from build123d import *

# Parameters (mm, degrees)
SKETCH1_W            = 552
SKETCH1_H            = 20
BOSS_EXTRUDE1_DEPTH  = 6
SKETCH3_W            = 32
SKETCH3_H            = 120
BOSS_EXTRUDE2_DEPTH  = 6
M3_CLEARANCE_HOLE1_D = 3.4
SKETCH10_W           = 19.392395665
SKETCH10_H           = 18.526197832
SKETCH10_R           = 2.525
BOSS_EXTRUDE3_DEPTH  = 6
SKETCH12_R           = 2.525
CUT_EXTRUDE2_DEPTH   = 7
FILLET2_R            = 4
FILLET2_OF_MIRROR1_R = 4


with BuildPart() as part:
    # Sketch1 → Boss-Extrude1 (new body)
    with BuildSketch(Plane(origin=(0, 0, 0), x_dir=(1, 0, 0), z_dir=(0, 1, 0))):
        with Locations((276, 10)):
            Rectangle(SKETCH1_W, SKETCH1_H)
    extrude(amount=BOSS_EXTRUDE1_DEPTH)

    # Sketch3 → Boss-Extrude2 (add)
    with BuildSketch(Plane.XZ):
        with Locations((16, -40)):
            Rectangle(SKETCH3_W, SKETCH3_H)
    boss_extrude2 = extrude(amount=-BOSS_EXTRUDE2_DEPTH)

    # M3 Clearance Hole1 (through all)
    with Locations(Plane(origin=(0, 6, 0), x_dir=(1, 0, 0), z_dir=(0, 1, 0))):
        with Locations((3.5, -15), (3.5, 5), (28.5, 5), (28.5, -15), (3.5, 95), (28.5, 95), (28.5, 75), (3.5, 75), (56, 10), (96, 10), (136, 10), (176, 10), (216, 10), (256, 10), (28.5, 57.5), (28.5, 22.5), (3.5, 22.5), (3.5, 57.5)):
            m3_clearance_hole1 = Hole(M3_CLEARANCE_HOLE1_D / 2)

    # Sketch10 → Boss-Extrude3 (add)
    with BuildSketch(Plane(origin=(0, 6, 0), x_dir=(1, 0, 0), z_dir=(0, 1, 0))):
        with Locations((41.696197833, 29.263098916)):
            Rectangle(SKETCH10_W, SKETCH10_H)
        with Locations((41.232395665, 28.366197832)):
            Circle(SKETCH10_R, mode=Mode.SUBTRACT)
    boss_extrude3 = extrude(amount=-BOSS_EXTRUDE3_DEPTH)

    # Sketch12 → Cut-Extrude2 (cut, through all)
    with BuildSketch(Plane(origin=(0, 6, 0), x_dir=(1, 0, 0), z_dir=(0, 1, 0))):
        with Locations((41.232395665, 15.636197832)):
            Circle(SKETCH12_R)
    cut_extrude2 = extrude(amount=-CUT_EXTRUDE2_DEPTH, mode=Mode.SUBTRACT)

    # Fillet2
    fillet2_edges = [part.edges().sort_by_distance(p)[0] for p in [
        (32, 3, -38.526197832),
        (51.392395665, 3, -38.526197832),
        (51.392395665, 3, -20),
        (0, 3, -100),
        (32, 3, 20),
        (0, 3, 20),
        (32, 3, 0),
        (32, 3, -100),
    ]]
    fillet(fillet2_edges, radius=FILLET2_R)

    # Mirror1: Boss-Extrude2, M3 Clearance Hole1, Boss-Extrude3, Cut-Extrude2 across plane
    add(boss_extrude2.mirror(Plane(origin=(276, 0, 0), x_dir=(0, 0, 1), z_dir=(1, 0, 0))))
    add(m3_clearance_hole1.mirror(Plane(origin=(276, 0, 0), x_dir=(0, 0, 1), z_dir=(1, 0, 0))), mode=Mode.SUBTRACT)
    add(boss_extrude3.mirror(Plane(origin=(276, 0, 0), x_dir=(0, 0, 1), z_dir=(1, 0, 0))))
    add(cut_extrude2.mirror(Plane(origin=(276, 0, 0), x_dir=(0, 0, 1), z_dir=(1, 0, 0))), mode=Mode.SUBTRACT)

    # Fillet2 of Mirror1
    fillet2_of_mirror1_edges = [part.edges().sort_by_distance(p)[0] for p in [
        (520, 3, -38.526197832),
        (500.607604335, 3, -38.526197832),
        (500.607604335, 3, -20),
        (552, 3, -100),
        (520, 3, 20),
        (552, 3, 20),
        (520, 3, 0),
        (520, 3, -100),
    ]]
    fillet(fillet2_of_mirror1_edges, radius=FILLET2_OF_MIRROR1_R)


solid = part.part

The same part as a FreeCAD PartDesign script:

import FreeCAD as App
import Part
import Sketcher
from FreeCAD import Vector


def edges_at(feature, points):
    """Names of the edges that pass closest to the given points."""
    edges = feature.Shape.Edges
    near = lambda p: min(range(len(edges)), key=lambda i: edges[i].distToShape(Part.Vertex(*p))[0])
    return sorted({f"Edge{near(p) + 1}" for p in points})


def add_polygon(sketch, points):
    """Adds a closed chain of lines whose ends are joined by coincident constraints."""
    first, n = sketch.GeometryCount, len(points)
    for a, b in zip(points, points[1:] + points[:1]):
        sketch.addGeometry(Part.LineSegment(App.Vector(*a, 0), App.Vector(*b, 0)), False)
    for i in range(n):
        sketch.addConstraint(Sketcher.Constraint("Coincident", first + i, 2, first + (i + 1) % n, 1))

doc = App.newDocument("Part")
body = doc.addObject("PartDesign::Body", "Body")

sketch1 = body.newObject("Sketcher::SketchObject", "Sketch")
sketch1.AttachmentSupport = (doc.getObject("XZ_Plane"), [""])
sketch1.MapMode = "FlatFace"
add_polygon(sketch1, [(0, -20), (0, 0), (552, 0), (552, -20)])
sketch1.addConstraint(Sketcher.Constraint("Vertical", 0))
sketch1.addConstraint(Sketcher.Constraint("Horizontal", 1))
sketch1.addConstraint(Sketcher.Constraint("Vertical", 2))
sketch1.addConstraint(Sketcher.Constraint("Horizontal", 3))
sketch1.addConstraint(Sketcher.Constraint("Coincident", 0, 2, -1, 1))
sketch1.addConstraint(Sketcher.Constraint("DistanceX", 1, 1, 1, 2, 552.0))
sketch1.addConstraint(Sketcher.Constraint("DistanceY", 0, 1, 0, 2, 20.0))
pad1 = body.newObject("PartDesign::Pad", "Pad")
pad1.Profile = sketch1
pad1.Length = 6
pad1.Reversed = True

sketch2 = body.newObject("Sketcher::SketchObject", "Sketch001")
sketch2.AttachmentSupport = (doc.getObject("XZ_Plane"), [""])
sketch2.MapMode = "FlatFace"
add_polygon(sketch2, [(0, 20), (0, -100), (32, -100), (32, 20)])
sketch2.addConstraint(Sketcher.Constraint("Vertical", 0))
sketch2.addConstraint(Sketcher.Constraint("Horizontal", 1))
sketch2.addConstraint(Sketcher.Constraint("Vertical", 2))
sketch2.addConstraint(Sketcher.Constraint("Horizontal", 3))
sketch2.addConstraint(Sketcher.Constraint("PointOnObject", 0, 2, -2))
sketch2.addConstraint(Sketcher.Constraint("DistanceX", 1, 1, 1, 2, 32.0))
sketch2.addConstraint(Sketcher.Constraint("DistanceY", 0, 2, 0, 1, 120.0))
sketch2.addConstraint(Sketcher.Constraint("DistanceY", 0, 2, -1, 1, 100.0))
pad2 = body.newObject("PartDesign::Pad", "Pad001")
pad2.Profile = sketch2
pad2.Length = 6
pad2.Reversed = True

sketch3 = body.newObject("Sketcher::SketchObject", "Sketch002")
sketch3.AttachmentSupport = (doc.getObject("XZ_Plane"), [""])
sketch3.MapMode = "FlatFace"
sketch3.AttachmentOffset = App.Placement(Vector(0, 0, -6), App.Rotation())
sketch3.addGeometry(Part.Circle(Vector(3.5, 15, 0), Vector(0, 0, 1), 1.7), False)
sketch3.addGeometry(Part.Circle(Vector(3.5, -5, 0), Vector(0, 0, 1), 1.7), False)
sketch3.addGeometry(Part.Circle(Vector(28.5, -5, 0), Vector(0, 0, 1), 1.7), False)
sketch3.addGeometry(Part.Circle(Vector(28.5, 15, 0), Vector(0, 0, 1), 1.7), False)
sketch3.addGeometry(Part.Circle(Vector(3.5, -95, 0), Vector(0, 0, 1), 1.7), False)
sketch3.addGeometry(Part.Circle(Vector(28.5, -95, 0), Vector(0, 0, 1), 1.7), False)
sketch3.addGeometry(Part.Circle(Vector(28.5, -75, 0), Vector(0, 0, 1), 1.7), False)
sketch3.addGeometry(Part.Circle(Vector(3.5, -75, 0), Vector(0, 0, 1), 1.7), False)
sketch3.addGeometry(Part.Circle(Vector(56, -10, 0), Vector(0, 0, 1), 1.7), False)
sketch3.addGeometry(Part.Circle(Vector(96, -10, 0), Vector(0, 0, 1), 1.7), False)
sketch3.addGeometry(Part.Circle(Vector(136, -10, 0), Vector(0, 0, 1), 1.7), False)
sketch3.addGeometry(Part.Circle(Vector(176, -10, 0), Vector(0, 0, 1), 1.7), False)
sketch3.addGeometry(Part.Circle(Vector(216, -10, 0), Vector(0, 0, 1), 1.7), False)
sketch3.addGeometry(Part.Circle(Vector(256, -10, 0), Vector(0, 0, 1), 1.7), False)
sketch3.addGeometry(Part.Circle(Vector(28.5, -57.5, 0), Vector(0, 0, 1), 1.7), False)
sketch3.addGeometry(Part.Circle(Vector(28.5, -22.5, 0), Vector(0, 0, 1), 1.7), False)
sketch3.addGeometry(Part.Circle(Vector(3.5, -22.5, 0), Vector(0, 0, 1), 1.7), False)
sketch3.addGeometry(Part.Circle(Vector(3.5, -57.5, 0), Vector(0, 0, 1), 1.7), False)
sketch3.addConstraint(Sketcher.Constraint("Equal", 0, 1))
sketch3.addConstraint(Sketcher.Constraint("Equal", 1, 2))
sketch3.addConstraint(Sketcher.Constraint("Equal", 2, 3))
sketch3.addConstraint(Sketcher.Constraint("Equal", 3, 4))
sketch3.addConstraint(Sketcher.Constraint("Equal", 4, 5))
sketch3.addConstraint(Sketcher.Constraint("Equal", 5, 6))
sketch3.addConstraint(Sketcher.Constraint("Equal", 6, 7))
sketch3.addConstraint(Sketcher.Constraint("Equal", 7, 8))
sketch3.addConstraint(Sketcher.Constraint("Equal", 8, 9))
sketch3.addConstraint(Sketcher.Constraint("Equal", 9, 10))
sketch3.addConstraint(Sketcher.Constraint("Equal", 10, 11))
sketch3.addConstraint(Sketcher.Constraint("Equal", 11, 12))
sketch3.addConstraint(Sketcher.Constraint("Equal", 12, 13))
sketch3.addConstraint(Sketcher.Constraint("Equal", 13, 14))
sketch3.addConstraint(Sketcher.Constraint("Equal", 14, 15))
sketch3.addConstraint(Sketcher.Constraint("Equal", 15, 16))
sketch3.addConstraint(Sketcher.Constraint("Equal", 16, 17))
sketch3.addConstraint(Sketcher.Constraint("Horizontal", 1, 3, 2, 3))
sketch3.addConstraint(Sketcher.Constraint("Horizontal", 0, 3, 3, 3))
sketch3.addConstraint(Sketcher.Constraint("Horizontal", 4, 3, 5, 3))
sketch3.addConstraint(Sketcher.Constraint("Horizontal", 6, 3, 7, 3))
sketch3.addConstraint(Sketcher.Constraint("Horizontal", 8, 3, 9, 3))
sketch3.addConstraint(Sketcher.Constraint("Horizontal", 9, 3, 10, 3))
sketch3.addConstraint(Sketcher.Constraint("Horizontal", 10, 3, 11, 3))
sketch3.addConstraint(Sketcher.Constraint("Horizontal", 11, 3, 12, 3))
sketch3.addConstraint(Sketcher.Constraint("Horizontal", 12, 3, 13, 3))
sketch3.addConstraint(Sketcher.Constraint("Horizontal", 15, 3, 16, 3))
sketch3.addConstraint(Sketcher.Constraint("Horizontal", 14, 3, 17, 3))
sketch3.addConstraint(Sketcher.Constraint("Vertical", 0, 3, 1, 3))
sketch3.addConstraint(Sketcher.Constraint("Vertical", 2, 3, 3, 3))
sketch3.addConstraint(Sketcher.Constraint("Vertical", 1, 3, 4, 3))
sketch3.addConstraint(Sketcher.Constraint("Vertical", 3, 3, 5, 3))
sketch3.addConstraint(Sketcher.Constraint("Vertical", 5, 3, 6, 3))
sketch3.addConstraint(Sketcher.Constraint("Vertical", 4, 3, 7, 3))
sketch3.addConstraint(Sketcher.Constraint("Vertical", 6, 3, 14, 3))
sketch3.addConstraint(Sketcher.Constraint("Vertical", 14, 3, 15, 3))
sketch3.addConstraint(Sketcher.Constraint("Vertical", 7, 3, 16, 3))
sketch3.addConstraint(Sketcher.Constraint("Vertical", 16, 3, 17, 3))
sketch3.addConstraint(Sketcher.Constraint("Diameter", 0, 3.4))
sketch3.addConstraint(Sketcher.Constraint("DistanceY", -1, 1, 0, 3, 15.0))
sketch3.addConstraint(Sketcher.Constraint("DistanceY", 1, 3, -1, 1, 5.0))
sketch3.addConstraint(Sketcher.Constraint("DistanceY", 4, 3, -1, 1, 95.0))
sketch3.addConstraint(Sketcher.Constraint("DistanceY", 6, 3, -1, 1, 75.0))
sketch3.addConstraint(Sketcher.Constraint("DistanceX", -1, 1, 8, 3, 56.0))
sketch3.addConstraint(Sketcher.Constraint("DistanceY", 8, 3, -1, 1, 10.0))
sketch3.addConstraint(Sketcher.Constraint("DistanceX", -1, 1, 9, 3, 96.0))
sketch3.addConstraint(Sketcher.Constraint("DistanceX", -1, 1, 10, 3, 136.0))
sketch3.addConstraint(Sketcher.Constraint("DistanceX", -1, 1, 11, 3, 176.0))
sketch3.addConstraint(Sketcher.Constraint("DistanceX", -1, 1, 12, 3, 216.0))
sketch3.addConstraint(Sketcher.Constraint("DistanceX", -1, 1, 13, 3, 256.0))
sketch3.addConstraint(Sketcher.Constraint("DistanceX", 1, 3, 2, 3, 25.0))
sketch3.addConstraint(Sketcher.Constraint("DistanceY", 14, 3, 15, 3, 35.0))
sketch3.addConstraint(Sketcher.Constraint("DistanceX", -1, 1, 0, 3, 3.5))
sketch3.addConstraint(Sketcher.Constraint("DistanceY", 14, 3, -1, 1, 57.5))
doc.recompute()
hole = body.newObject("PartDesign::Hole", "Hole")
hole.Profile = sketch3
hole.ThreadType = "None"
hole.Diameter = 3.4
hole.DepthType = "ThroughAll"
hole.Reversed = True

sketch4 = body.newObject("Sketcher::SketchObject", "Sketch003")
sketch4.AttachmentSupport = (doc.getObject("XZ_Plane"), [""])
sketch4.MapMode = "FlatFace"
sketch4.AttachmentOffset = App.Placement(Vector(0, 0, -6), App.Rotation())
add_polygon(sketch4, [(32, -38.526198), (32, -20), (51.392396, -20), (51.392396, -38.526198)])
sketch4.addGeometry(Part.Circle(Vector(41.232396, -28.366198, 0), Vector(0, 0, 1), 2.525), False)
sketch4.addConstraint(Sketcher.Constraint("Vertical", 0))
sketch4.addConstraint(Sketcher.Constraint("Horizontal", 1))
sketch4.addConstraint(Sketcher.Constraint("Vertical", 2))
sketch4.addConstraint(Sketcher.Constraint("Horizontal", 3))
sketch4.addConstraint(Sketcher.Constraint("Diameter", 4, 5.05))
sketch4.addConstraint(Sketcher.Constraint("DistanceX", -1, 1, 0, 2, 32.0))
sketch4.addConstraint(Sketcher.Constraint("DistanceY", 0, 2, -1, 1, 20.0))
sketch4.addConstraint(Sketcher.Constraint("DistanceX", 4, 3, 1, 2, 10.16))
sketch4.addConstraint(Sketcher.Constraint("DistanceY", 2, 2, 4, 3, 10.16))
sketch4.addConstraint(Sketcher.Constraint("DistanceX", 1, 1, 1, 2, 19.392396))
sketch4.addConstraint(Sketcher.Constraint("DistanceY", 0, 1, 0, 2, 18.526198))
pad3 = body.newObject("PartDesign::Pad", "Pad002")
pad3.Profile = sketch4
pad3.Length = 6

sketch5 = body.newObject("Sketcher::SketchObject", "Sketch004")
sketch5.AttachmentSupport = (doc.getObject("XZ_Plane"), [""])
sketch5.MapMode = "FlatFace"
sketch5.AttachmentOffset = App.Placement(Vector(0, 0, -6), App.Rotation())
sketch5.addGeometry(Part.Circle(Vector(41.232396, -15.636198, 0), Vector(0, 0, 1), 2.525), False)
sketch5.addConstraint(Sketcher.Constraint("Diameter", 0, 5.05))
sketch5.addConstraint(Sketcher.Constraint("DistanceX", -1, 1, 0, 3, 41.232396))
sketch5.addConstraint(Sketcher.Constraint("DistanceY", 0, 3, -1, 1, 15.636198))
pocket1 = body.newObject("PartDesign::Pocket", "Pocket")
pocket1.Profile = sketch5
pocket1.Type = "ThroughAll"
pocket1.Reversed = True
doc.recompute()

fillet = body.newObject("PartDesign::Fillet", "Fillet")
fillet.Base = (pocket1, edges_at(pocket1, [
    (32, 3, -38.526),
    (51.392, 3, -38.526),
    (51.392, 3, -20),
    (0, 3, -100),
    (32, 3, 20),
    (0, 3, 20),
    (32, 3, 0),
    (32, 3, -100),
]))
fillet.Radius = 4
doc.recompute()

datumplane = body.newObject("PartDesign::Plane", "DatumPlane")
datumplane.AttachmentSupport = (doc.getObject("YZ_Plane"), [""])
datumplane.MapMode = "FlatFace"
datumplane.AttachmentOffset = App.Placement(Vector(0, 0, 276), App.Rotation())
mirrored = body.newObject("PartDesign::Mirrored", "Mirrored")
mirrored.Originals = [pad2, hole, pad3, pocket1]
mirrored.MirrorPlane = (datumplane, [""])
body.Tip = mirrored
doc.recompute()

fillet2 = body.newObject("PartDesign::Fillet", "Fillet001")
fillet2.Base = (mirrored, edges_at(mirrored, [
    (520, 3, -38.526),
    (500.608, 3, -38.526),
    (500.608, 3, -20),
    (552, 3, -100),
    (520, 3, 20),
    (552, 3, 20),
    (520, 3, 0),
    (520, 3, -100),
]))
fillet2.Radius = 4

doc.recompute()
